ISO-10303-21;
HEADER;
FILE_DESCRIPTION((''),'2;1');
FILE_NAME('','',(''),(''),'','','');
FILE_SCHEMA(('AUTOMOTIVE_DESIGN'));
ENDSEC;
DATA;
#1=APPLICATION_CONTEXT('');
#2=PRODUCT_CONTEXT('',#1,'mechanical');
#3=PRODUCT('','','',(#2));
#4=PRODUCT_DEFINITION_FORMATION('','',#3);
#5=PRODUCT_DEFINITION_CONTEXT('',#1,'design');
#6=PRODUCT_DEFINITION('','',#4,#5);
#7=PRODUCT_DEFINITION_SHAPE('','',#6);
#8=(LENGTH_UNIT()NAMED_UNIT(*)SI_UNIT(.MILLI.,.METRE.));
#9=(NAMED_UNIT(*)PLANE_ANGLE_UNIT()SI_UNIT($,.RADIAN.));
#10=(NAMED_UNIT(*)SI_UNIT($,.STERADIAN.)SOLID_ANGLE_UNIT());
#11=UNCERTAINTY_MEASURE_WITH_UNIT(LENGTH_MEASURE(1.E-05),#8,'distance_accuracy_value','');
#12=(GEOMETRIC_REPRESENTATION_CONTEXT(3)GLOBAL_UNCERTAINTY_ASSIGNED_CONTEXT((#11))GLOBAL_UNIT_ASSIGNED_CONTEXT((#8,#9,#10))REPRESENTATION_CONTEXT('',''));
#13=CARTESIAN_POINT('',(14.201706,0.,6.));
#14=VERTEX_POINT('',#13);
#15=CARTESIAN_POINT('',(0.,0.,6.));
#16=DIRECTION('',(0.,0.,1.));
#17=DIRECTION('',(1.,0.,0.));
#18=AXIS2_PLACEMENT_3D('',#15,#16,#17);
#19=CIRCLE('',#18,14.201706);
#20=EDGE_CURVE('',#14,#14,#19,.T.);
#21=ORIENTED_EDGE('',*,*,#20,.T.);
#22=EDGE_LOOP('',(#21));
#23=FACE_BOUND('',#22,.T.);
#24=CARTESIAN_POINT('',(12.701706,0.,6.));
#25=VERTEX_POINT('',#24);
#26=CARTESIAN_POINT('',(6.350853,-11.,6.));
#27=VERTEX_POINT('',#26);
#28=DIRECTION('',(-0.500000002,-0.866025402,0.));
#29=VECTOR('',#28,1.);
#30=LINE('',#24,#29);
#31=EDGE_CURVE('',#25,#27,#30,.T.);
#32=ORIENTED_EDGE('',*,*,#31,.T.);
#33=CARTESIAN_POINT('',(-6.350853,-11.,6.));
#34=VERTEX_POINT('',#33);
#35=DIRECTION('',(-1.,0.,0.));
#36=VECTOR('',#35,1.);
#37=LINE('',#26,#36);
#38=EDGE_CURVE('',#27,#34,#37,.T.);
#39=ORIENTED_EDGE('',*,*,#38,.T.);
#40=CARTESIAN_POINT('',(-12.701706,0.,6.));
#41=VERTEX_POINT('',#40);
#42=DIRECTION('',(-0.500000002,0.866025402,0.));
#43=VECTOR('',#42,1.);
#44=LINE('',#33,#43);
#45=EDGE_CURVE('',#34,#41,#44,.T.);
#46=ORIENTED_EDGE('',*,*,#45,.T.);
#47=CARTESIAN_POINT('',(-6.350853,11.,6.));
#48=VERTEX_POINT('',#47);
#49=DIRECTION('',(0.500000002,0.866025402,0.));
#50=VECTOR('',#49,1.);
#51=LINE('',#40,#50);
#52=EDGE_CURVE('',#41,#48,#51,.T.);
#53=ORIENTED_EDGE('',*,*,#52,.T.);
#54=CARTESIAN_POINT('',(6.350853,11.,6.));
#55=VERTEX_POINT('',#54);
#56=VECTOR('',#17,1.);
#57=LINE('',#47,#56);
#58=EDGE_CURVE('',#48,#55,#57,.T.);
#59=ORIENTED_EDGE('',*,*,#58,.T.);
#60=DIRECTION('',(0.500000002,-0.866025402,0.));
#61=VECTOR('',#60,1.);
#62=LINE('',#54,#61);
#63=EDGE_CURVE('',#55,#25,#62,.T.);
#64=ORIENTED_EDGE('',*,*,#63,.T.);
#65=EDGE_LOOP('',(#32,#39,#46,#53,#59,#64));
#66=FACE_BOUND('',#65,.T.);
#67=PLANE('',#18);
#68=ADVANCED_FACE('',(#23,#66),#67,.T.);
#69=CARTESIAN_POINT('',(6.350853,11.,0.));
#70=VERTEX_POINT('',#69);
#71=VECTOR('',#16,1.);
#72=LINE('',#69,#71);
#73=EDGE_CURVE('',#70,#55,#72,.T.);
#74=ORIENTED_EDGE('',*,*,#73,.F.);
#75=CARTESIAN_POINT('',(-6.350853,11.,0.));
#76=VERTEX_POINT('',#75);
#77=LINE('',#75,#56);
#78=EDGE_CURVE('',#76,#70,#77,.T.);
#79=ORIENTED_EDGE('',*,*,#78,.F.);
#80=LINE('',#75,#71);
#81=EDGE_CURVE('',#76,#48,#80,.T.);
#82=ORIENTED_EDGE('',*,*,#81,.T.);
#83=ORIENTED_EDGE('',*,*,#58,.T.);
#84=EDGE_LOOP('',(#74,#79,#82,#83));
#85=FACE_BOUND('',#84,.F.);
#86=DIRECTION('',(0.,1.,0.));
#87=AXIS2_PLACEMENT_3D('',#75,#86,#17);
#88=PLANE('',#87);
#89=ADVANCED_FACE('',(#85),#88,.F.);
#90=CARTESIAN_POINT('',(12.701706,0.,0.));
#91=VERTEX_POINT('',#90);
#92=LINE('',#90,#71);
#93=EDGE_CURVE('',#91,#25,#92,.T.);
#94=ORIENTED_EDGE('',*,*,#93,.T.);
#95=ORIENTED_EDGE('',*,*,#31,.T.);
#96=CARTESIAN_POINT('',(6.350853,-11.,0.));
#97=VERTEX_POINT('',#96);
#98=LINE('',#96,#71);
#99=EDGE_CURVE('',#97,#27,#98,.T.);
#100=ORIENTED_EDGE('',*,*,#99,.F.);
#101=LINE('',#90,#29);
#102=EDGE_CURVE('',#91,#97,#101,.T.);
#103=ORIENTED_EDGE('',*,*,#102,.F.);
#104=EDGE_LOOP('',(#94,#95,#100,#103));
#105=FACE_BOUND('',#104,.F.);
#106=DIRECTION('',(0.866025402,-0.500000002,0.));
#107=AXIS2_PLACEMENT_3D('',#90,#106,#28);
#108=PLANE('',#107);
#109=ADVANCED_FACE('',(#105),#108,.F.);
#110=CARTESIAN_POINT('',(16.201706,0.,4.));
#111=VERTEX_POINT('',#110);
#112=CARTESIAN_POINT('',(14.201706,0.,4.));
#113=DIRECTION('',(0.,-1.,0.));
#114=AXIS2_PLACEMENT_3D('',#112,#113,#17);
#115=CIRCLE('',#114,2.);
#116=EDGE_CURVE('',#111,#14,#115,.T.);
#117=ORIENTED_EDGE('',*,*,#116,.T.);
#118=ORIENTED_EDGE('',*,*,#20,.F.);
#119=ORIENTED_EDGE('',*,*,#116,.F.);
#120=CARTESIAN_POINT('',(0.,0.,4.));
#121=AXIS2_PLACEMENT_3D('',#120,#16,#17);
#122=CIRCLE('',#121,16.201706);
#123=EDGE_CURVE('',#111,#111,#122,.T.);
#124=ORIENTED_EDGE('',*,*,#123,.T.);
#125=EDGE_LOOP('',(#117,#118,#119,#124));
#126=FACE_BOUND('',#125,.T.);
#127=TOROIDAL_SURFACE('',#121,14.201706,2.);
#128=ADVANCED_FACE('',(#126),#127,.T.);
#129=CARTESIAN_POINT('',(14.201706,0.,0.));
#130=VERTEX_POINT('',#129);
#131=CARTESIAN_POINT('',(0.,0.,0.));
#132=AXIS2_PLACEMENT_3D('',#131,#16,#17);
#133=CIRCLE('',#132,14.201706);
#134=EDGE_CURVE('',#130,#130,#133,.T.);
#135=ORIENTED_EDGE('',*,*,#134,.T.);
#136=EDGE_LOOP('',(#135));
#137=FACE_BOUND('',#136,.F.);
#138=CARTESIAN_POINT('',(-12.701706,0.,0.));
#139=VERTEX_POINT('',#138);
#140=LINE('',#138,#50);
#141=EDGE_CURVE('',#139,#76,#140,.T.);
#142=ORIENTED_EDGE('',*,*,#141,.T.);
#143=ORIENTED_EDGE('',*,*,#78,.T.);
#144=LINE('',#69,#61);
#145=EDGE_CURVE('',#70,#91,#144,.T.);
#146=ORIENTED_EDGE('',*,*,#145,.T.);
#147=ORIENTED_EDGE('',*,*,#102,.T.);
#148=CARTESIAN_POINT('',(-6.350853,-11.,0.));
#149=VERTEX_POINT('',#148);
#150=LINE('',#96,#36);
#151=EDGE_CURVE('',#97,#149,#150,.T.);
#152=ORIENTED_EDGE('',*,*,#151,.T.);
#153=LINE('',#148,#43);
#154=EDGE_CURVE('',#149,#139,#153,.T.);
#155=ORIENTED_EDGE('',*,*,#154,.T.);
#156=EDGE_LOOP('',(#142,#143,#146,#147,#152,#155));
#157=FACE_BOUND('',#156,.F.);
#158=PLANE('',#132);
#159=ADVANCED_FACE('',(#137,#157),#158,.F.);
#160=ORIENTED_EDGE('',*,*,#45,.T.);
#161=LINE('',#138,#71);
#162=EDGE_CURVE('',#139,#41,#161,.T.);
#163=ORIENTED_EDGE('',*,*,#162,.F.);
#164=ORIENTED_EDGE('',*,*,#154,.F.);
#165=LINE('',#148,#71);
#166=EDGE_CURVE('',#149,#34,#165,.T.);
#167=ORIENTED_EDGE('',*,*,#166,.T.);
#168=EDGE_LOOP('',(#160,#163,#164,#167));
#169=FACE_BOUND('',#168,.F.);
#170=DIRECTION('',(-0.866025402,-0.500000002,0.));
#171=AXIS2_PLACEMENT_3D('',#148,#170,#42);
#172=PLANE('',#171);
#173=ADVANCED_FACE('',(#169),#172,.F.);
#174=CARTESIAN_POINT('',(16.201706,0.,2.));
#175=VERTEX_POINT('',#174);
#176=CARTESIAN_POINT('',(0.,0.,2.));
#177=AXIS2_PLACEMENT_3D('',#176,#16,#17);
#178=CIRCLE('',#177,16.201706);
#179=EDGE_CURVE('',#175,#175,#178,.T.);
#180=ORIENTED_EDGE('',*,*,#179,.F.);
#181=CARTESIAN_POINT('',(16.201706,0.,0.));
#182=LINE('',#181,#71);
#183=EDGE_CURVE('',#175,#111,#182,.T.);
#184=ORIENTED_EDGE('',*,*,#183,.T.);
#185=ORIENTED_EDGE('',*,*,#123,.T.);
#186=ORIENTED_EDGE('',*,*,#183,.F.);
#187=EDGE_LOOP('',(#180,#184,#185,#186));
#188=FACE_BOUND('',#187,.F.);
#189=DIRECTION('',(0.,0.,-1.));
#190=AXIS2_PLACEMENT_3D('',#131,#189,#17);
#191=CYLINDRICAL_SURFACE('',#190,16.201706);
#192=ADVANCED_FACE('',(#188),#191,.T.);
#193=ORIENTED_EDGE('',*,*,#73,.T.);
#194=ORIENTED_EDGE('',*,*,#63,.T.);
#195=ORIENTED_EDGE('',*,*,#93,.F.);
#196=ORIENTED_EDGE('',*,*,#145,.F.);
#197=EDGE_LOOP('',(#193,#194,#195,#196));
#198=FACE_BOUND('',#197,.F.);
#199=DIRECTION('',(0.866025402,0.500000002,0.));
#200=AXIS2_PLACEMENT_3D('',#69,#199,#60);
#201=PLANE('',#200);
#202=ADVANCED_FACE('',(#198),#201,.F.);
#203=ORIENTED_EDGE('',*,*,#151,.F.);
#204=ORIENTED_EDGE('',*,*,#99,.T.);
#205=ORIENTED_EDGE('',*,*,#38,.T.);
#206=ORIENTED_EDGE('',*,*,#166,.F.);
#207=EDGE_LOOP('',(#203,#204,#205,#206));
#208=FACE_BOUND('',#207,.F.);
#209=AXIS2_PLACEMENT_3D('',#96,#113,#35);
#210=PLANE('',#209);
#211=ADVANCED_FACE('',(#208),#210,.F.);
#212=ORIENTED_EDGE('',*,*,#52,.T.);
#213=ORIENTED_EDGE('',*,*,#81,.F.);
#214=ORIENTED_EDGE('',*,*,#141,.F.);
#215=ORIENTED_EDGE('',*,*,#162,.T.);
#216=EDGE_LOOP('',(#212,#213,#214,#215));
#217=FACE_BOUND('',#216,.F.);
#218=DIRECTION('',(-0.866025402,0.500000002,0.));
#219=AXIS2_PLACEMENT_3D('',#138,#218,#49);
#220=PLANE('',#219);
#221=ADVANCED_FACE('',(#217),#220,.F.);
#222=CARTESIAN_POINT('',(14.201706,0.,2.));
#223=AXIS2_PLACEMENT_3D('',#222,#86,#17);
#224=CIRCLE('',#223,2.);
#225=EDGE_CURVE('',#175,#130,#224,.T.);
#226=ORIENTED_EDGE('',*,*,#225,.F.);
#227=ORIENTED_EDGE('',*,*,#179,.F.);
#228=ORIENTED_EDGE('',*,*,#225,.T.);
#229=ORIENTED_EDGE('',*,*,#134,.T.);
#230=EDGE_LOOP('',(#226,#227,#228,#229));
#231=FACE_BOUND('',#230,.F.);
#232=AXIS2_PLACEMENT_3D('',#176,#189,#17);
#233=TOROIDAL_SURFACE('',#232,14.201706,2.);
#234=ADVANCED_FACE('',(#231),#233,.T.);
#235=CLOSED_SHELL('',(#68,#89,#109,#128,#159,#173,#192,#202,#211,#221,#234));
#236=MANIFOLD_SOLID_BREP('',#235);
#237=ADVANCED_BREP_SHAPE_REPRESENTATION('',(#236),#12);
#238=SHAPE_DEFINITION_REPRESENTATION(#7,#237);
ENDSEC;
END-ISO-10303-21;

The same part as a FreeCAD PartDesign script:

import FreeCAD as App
import Part
import Sketcher

V = App.Vector
Q = App.Units.Quantity


def edges_at(feature, points):
    """Names of the edges that pass closest to the given points."""
    edges = feature.Shape.Edges
    near = lambda p: min(range(len(edges)), key=lambda i: edges[i].distToShape(Part.Vertex(*p))[0])
    return sorted({f"Edge{near(p) + 1}" for p in points})

doc = App.newDocument("Part")
params = doc.addObject("Spreadsheet::Sheet", "Params")
for row, (alias, value) in enumerate([
    ("pad1_length", "6 mm"),
    ("fillet_radius", "2 mm"),
], start=1):
    params.set(f"A{row}", alias)
    params.set(f"B{row}", "=" + value)
    params.setAlias(f"B{row}", alias)

body = doc.addObject("PartDesign::Body", "Body")

# Sketch on XY plane
sketch1 = body.newObject("Sketcher::SketchObject", "Sketch")
sketch1.AttachmentSupport = (doc.getObject("XY_Plane"), [""])
sketch1.MapMode = "FlatFace"
sketch1.addGeometry(Part.Circle(V(0, 0, 0), V(0, 0, 1), 16), False)
sketch1.addGeometry(Part.LineSegment(V(-6, -11, 0), V(-13, 0, 0)), False)
sketch1.addGeometry(Part.LineSegment(V(-13, 0, 0), V(-6, 11, 0)), False)
sketch1.addGeometry(Part.LineSegment(V(-6, 11, 0), V(6, 11, 0)), False)
sketch1.addGeometry(Part.LineSegment(V(6, 11, 0), V(13, 0, 0)), False)
sketch1.addGeometry(Part.LineSegment(V(13, 0, 0), V(6, -11, 0)), False)
sketch1.addGeometry(Part.LineSegment(V(6, -11, 0), V(-6, -11, 0)), False)
sketch1.addConstraint(Sketcher.Constraint("Coincident", 1, 2, 2, 1))
sketch1.addConstraint(Sketcher.Constraint("Coincident", 2, 2, 3, 1))
sketch1.addConstraint(Sketcher.Constraint("Coincident", 3, 2, 4, 1))
sketch1.addConstraint(Sketcher.Constraint("Coincident", 4, 2, 5, 1))
sketch1.addConstraint(Sketcher.Constraint("Coincident", 5, 2, 6, 1))
sketch1.addConstraint(Sketcher.Constraint("Coincident", 6, 2, 1, 1))
sketch1.addConstraint(Sketcher.Constraint("Horizontal", 3))
sketch1.addConstraint(Sketcher.Constraint("Horizontal", 6))
sketch1.addConstraint(Sketcher.Constraint("Coincident", 0, 3, -1, 1))
sketch1.addConstraint(Sketcher.Constraint("Symmetric", 1, 2, 4, 2, -1, 1))
sketch1.addConstraint(Sketcher.Constraint("Symmetric", 2, 2, 5, 2, -1, 1))
sketch1.addConstraint(Sketcher.Constraint("PointOnObject", 1, 2, -1))
sketch1.addConstraint(Sketcher.Constraint("Parallel", 1, 4))
sketch1.addConstraint(Sketcher.Constraint("Vertical", 3, 2, 5, 2))
sketch1.addConstraint(Sketcher.Constraint("Angle", 1, Q("120 deg")))
sketch1.addConstraint(Sketcher.Constraint("DistanceY", -1, 1, 2, 2, 11.0))
sketch1.addConstraint(Sketcher.Constraint("Diameter", 0, 32.403412))
sketch1.addConstraint(Sketcher.Constraint("DistanceX", 3, 1, 3, 2, 12.701706))
pad1 = body.newObject("PartDesign::Pad", "Pad")
pad1.Profile = sketch1
pad1.setExpression("Length", "Params.pad1_length")
doc.recompute()

fillet = body.newObject("PartDesign::Fillet", "Fillet")
fillet.Base = (pad1, edges_at(pad1, [(-16.202, 0, 6), (-16.202, 0, 0)]))
fillet.setExpression("Radius", "Params.fillet_radius")

doc.recompute()
